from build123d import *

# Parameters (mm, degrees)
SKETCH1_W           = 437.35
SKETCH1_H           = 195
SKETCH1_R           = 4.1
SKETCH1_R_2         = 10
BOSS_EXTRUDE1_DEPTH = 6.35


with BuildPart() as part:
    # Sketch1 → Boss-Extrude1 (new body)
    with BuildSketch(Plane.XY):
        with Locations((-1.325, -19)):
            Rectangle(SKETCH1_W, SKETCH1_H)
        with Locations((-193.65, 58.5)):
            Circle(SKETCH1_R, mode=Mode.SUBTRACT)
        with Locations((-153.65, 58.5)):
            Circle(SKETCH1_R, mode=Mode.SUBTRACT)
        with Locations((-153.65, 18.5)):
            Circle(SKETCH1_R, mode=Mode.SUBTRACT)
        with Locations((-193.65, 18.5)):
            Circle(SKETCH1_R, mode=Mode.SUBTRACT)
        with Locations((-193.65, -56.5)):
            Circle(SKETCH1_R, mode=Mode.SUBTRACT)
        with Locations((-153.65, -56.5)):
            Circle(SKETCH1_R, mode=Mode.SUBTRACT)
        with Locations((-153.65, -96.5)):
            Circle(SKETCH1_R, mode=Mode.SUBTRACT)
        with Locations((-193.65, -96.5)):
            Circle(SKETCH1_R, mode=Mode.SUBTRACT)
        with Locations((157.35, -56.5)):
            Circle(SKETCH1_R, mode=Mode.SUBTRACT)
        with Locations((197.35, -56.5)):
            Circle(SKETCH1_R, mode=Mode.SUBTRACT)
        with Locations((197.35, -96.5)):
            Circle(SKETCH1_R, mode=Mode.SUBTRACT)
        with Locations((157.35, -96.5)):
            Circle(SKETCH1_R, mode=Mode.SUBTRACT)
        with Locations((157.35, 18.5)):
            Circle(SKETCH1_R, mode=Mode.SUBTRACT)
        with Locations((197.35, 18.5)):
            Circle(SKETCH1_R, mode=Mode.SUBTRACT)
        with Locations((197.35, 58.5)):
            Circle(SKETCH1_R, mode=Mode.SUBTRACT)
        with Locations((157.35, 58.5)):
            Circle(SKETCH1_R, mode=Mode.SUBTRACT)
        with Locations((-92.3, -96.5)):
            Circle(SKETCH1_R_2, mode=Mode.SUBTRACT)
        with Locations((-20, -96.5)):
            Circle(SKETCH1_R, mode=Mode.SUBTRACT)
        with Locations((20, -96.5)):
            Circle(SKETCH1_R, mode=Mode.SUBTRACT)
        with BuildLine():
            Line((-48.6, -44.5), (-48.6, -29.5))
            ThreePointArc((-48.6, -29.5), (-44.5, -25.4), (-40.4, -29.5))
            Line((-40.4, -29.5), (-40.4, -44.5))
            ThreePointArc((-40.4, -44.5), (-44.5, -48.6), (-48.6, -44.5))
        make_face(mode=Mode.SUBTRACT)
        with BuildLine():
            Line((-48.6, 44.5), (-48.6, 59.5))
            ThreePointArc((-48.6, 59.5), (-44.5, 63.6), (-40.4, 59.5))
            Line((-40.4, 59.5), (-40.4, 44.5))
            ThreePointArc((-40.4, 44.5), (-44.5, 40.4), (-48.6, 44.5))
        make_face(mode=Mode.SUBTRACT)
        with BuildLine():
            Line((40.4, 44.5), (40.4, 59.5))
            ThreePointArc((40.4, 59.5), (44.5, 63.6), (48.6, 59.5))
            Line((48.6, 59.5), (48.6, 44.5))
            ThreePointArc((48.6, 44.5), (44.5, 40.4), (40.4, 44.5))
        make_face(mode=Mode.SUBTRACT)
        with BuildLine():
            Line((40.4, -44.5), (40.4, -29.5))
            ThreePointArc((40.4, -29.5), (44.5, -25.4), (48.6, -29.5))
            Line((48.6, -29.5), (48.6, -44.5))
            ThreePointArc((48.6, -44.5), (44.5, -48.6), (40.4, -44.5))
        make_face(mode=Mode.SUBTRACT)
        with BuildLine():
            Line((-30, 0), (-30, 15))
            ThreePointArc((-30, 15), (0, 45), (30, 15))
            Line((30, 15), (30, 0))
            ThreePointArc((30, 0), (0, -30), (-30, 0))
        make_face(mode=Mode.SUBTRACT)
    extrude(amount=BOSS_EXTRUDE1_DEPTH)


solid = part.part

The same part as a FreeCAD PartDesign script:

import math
import FreeCAD as App
import Part
import Sketcher
from FreeCAD import Vector
Q = App.Units.Quantity

doc = App.newDocument("Part")
body = doc.addObject("PartDesign::Body", "Body")

# Sketch on XY plane
sketch1 = doc.addObject("Sketcher::SketchObject", "Sketch")
body.addObject(sketch1)
sketch1.AttachmentSupport = (doc.XY_Plane, [""])
sketch1.MapMode = "FlatFace"
sketch1.addGeometry(Part.LineSegment(Vector(-220, 78.5, 0), Vector(-220, -116.5, 0)), False)
sketch1.addGeometry(Part.LineSegment(Vector(-220, -116.5, 0), Vector(217.3, -116.5, 0)), False)
sketch1.addGeometry(Part.LineSegment(Vector(217.3, -116.5, 0), Vector(217.3, 78.5, 0)), False)
sketch1.addGeometry(Part.LineSegment(Vector(217.3, 78.5, 0), Vector(-220, 78.5, 0)), False)
sketch1.addGeometry(Part.Circle(Vector(-193.7, -96.5, 0), Vector(0, 0, 1), 4.1), False)
sketch1.addGeometry(Part.Circle(Vector(-153.7, -96.5, 0), Vector(0, 0, 1), 4.1), False)
sketch1.addGeometry(Part.Circle(Vector(-92.3, -96.5, 0), Vector(0, 0, 1), 10), False)
sketch1.addGeometry(Part.Circle(Vector(-20, -96.5, 0), Vector(0, 0, 1), 4.1), False)
sketch1.addGeometry(Part.Circle(Vector(-193.7, -56.5, 0), Vector(0, 0, 1), 4.1), False)
sketch1.addGeometry(Part.Circle(Vector(-153.7, -56.5, 0), Vector(0, 0, 1), 4.1), False)
sketch1.addGeometry(Part.ArcOfCircle(Part.Circle(Vector(-44.5, -44.5, 0), Vector(0, 0, 1), 4.1), math.radians(180), math.radians(360)), False)
sketch1.addGeometry(Part.LineSegment(Vector(-48.6, -44.5, 0), Vector(-48.6, -29.5, 0)), False)
sketch1.addGeometry(Part.ArcOfCircle(Part.Circle(Vector(-44.5, -29.5, 0), Vector(0, 0, 1), 4.1), math.radians(0), math.radians(180)), False)
sketch1.addGeometry(Part.LineSegment(Vector(-40.4, -29.5, 0), Vector(-40.4, -44.5, 0)), False)
sketch1.addGeometry(Part.Circle(Vector(20, -96.5, 0), Vector(0, 0, 1), 4.1), False)
sketch1.addGeometry(Part.Circle(Vector(157.3, -96.5, 0), Vector(0, 0, 1), 4.1), False)
sketch1.addGeometry(Part.Circle(Vector(197.3, -96.5, 0), Vector(0, 0, 1), 4.1), False)
sketch1.addGeometry(Part.ArcOfCircle(Part.Circle(Vector(44.5, -44.5, 0), Vector(0, 0, 1), 4.1), math.radians(180), math.radians(360)), False)
sketch1.addGeometry(Part.LineSegment(Vector(40.4, -44.5, 0), Vector(40.4, -29.5, 0)), False)
sketch1.addGeometry(Part.ArcOfCircle(Part.Circle(Vector(44.5, -29.5, 0), Vector(0, 0, 1), 4.1), math.radians(0), math.radians(180)), False)
sketch1.addGeometry(Part.LineSegment(Vector(48.6, -29.5, 0), Vector(48.6, -44.5, 0)), False)
sketch1.addGeometry(Part.Circle(Vector(157.3, -56.5, 0), Vector(0, 0, 1), 4.1), False)
sketch1.addGeometry(Part.Circle(Vector(197.3, -56.5, 0), Vector(0, 0, 1), 4.1), False)
sketch1.addGeometry(Part.Circle(Vector(-193.7, 18.5, 0), Vector(0, 0, 1), 4.1), False)
sketch1.addGeometry(Part.Circle(Vector(-153.7, 18.5, 0), Vector(0, 0, 1), 4.1), False)
sketch1.addGeometry(Part.ArcOfCircle(Part.Circle(Vector(0, 0, 0), Vector(0, 0, 1), 30), math.radians(180), math.radians(360)), False)
sketch1.addGeometry(Part.LineSegment(Vector(-30, 0, 0), Vector(-30, 15, 0)), False)
sketch1.addGeometry(Part.ArcOfCircle(Part.Circle(Vector(0, 15, 0), Vector(0, 0, 1), 30), math.radians(0), math.radians(180)), False)
sketch1.addGeometry(Part.LineSegment(Vector(30, 15, 0), Vector(30, 0, 0)), False)
sketch1.addGeometry(Part.Circle(Vector(-193.7, 58.5, 0), Vector(0, 0, 1), 4.1), False)
sketch1.addGeometry(Part.Circle(Vector(-153.7, 58.5, 0), Vector(0, 0, 1), 4.1), False)
sketch1.addGeometry(Part.ArcOfCircle(Part.Circle(Vector(-44.5, 44.5, 0), Vector(0, 0, 1), 4.1), math.radians(180), math.radians(360)), False)
sketch1.addGeometry(Part.LineSegment(Vector(-48.6, 44.5, 0), Vector(-48.6, 59.5, 0)), False)
sketch1.addGeometry(Part.ArcOfCircle(Part.Circle(Vector(-44.5, 59.5, 0), Vector(0, 0, 1), 4.1), math.radians(0), math.radians(180)), False)
sketch1.addGeometry(Part.LineSegment(Vector(-40.4, 59.5, 0), Vector(-40.4, 44.5, 0)), False)
sketch1.addGeometry(Part.Circle(Vector(157.3, 18.5, 0), Vector(0, 0, 1), 4.1), False)
sketch1.addGeometry(Part.Circle(Vector(197.3, 18.5, 0), Vector(0, 0, 1), 4.1), False)
sketch1.addGeometry(Part.ArcOfCircle(Part.Circle(Vector(44.5, 44.5, 0), Vector(0, 0, 1), 4.1), math.radians(180), math.radians(360)), False)
sketch1.addGeometry(Part.LineSegment(Vector(40.4, 44.5, 0), Vector(40.4, 59.5, 0)), False)
sketch1.addGeometry(Part.ArcOfCircle(Part.Circle(Vector(44.5, 59.5, 0), Vector(0, 0, 1), 4.1), math.radians(0), math.radians(180)), False)
sketch1.addGeometry(Part.LineSegment(Vector(48.6, 59.5, 0), Vector(48.6, 44.5, 0)), False)
sketch1.addGeometry(Part.Circle(Vector(157.3, 58.5, 0), Vector(0, 0, 1), 4.1), False)
sketch1.addGeometry(Part.Circle(Vector(197.3, 58.5, 0), Vector(0, 0, 1), 4.1), False)
sketch1.addConstraint(Sketcher.Constraint("Coincident", 0, 2, 1, 1))
sketch1.addConstraint(Sketcher.Constraint("Coincident", 1, 2, 2, 1))
sketch1.addConstraint(Sketcher.Constraint("Coincident", 2, 2, 3, 1))
sketch1.addConstraint(Sketcher.Constraint("Coincident", 3, 2, 0, 1))
sketch1.addConstraint(Sketcher.Constraint("Tangent", 10, 1, 11, 1))
sketch1.addConstraint(Sketcher.Constraint("Tangent", 11, 2, 12, 2))
sketch1.addConstraint(Sketcher.Constraint("Tangent", 12, 1, 13, 1))
sketch1.addConstraint(Sketcher.Constraint("Tangent", 13, 2, 10, 2))
sketch1.addConstraint(Sketcher.Constraint("Tangent", 17, 1, 18, 1))
sketch1.addConstraint(Sketcher.Constraint("Tangent", 18, 2, 19, 2))
sketch1.addConstraint(Sketcher.Constraint("Tangent", 19, 1, 20, 1))
sketch1.addConstraint(Sketcher.Constraint("Tangent", 20, 2, 17, 2))
sketch1.addConstraint(Sketcher.Constraint("Tangent", 25, 1, 26, 1))
sketch1.addConstraint(Sketcher.Constraint("Tangent", 26, 2, 27, 2))
sketch1.addConstraint(Sketcher.Constraint("Tangent", 27, 1, 28, 1))
sketch1.addConstraint(Sketcher.Constraint("Tangent", 28, 2, 25, 2))
sketch1.addConstraint(Sketcher.Constraint("Tangent", 31, 1, 32, 1))
sketch1.addConstraint(Sketcher.Constraint("Tangent", 32, 2, 33, 2))
sketch1.addConstraint(Sketcher.Constraint("Tangent", 33, 1, 34, 1))
sketch1.addConstraint(Sketcher.Constraint("Tangent", 34, 2, 31, 2))
sketch1.addConstraint(Sketcher.Constraint("Tangent", 37, 1, 38, 1))
sketch1.addConstraint(Sketcher.Constraint("Tangent", 38, 2, 39, 2))
sketch1.addConstraint(Sketcher.Constraint("Tangent", 39, 1, 40, 1))
sketch1.addConstraint(Sketcher.Constraint("Tangent", 40, 2, 37, 2))
sketch1.addConstraint(Sketcher.Constraint("Vertical", 0))
sketch1.addConstraint(Sketcher.Constraint("Horizontal", 1))
sketch1.addConstraint(Sketcher.Constraint("Vertical", 2))
sketch1.addConstraint(Sketcher.Constraint("Horizontal", 3))
sketch1.addConstraint(Sketcher.Constraint("Vertical", 11))
sketch1.addConstraint(Sketcher.Constraint("Vertical", 13))
sketch1.addConstraint(Sketcher.Constraint("Vertical", 18))
sketch1.addConstraint(Sketcher.Constraint("Vertical", 20))
sketch1.addConstraint(Sketcher.Constraint("Vertical", 26))
sketch1.addConstraint(Sketcher.Constraint("Vertical", 28))
sketch1.addConstraint(Sketcher.Constraint("Vertical", 32))
sketch1.addConstraint(Sketcher.Constraint("Vertical", 34))
sketch1.addConstraint(Sketcher.Constraint("Vertical", 38))
sketch1.addConstraint(Sketcher.Constraint("Vertical", 40))
sketch1.addConstraint(Sketcher.Constraint("Coincident", 25, 3, -1, 1))
sketch1.addConstraint(Sketcher.Constraint("Equal", 4, 5))
sketch1.addConstraint(Sketcher.Constraint("Equal", 5, 7))
sketch1.addConstraint(Sketcher.Constraint("Equal", 7, 8))
sketch1.addConstraint(Sketcher.Constraint("Equal", 8, 9))
sketch1.addConstraint(Sketcher.Constraint("Equal", 9, 10))
sketch1.addConstraint(Sketcher.Constraint("Equal", 12, 14))
sketch1.addConstraint(Sketcher.Constraint("Equal", 14, 15))
sketch1.addConstraint(Sketcher.Constraint("Equal", 15, 16))
sketch1.addConstraint(Sketcher.Constraint("Equal", 16, 17))
sketch1.addConstraint(Sketcher.Constraint("Equal", 19, 21))
sketch1.addConstraint(Sketcher.Constraint("Equal", 21, 22))
sketch1.addConstraint(Sketcher.Constraint("Equal", 22, 23))
sketch1.addConstraint(Sketcher.Constraint("Equal", 23, 24))
sketch1.addConstraint(Sketcher.Constraint("Equal", 24, 29))
sketch1.addConstraint(Sketcher.Constraint("Equal", 29, 30))
sketch1.addConstraint(Sketcher.Constraint("Equal", 30, 31))
sketch1.addConstraint(Sketcher.Constraint("Equal", 33, 35))
sketch1.addConstraint(Sketcher.Constraint("Equal", 35, 36))
sketch1.addConstraint(Sketcher.Constraint("Equal", 36, 37))
sketch1.addConstraint(Sketcher.Constraint("Equal", 39, 41))
sketch1.addConstraint(Sketcher.Constraint("Equal", 41, 42))
sketch1.addConstraint(Sketcher.Constraint("Symmetric", 17, 3, 31, 3, -1, 1))
sketch1.addConstraint(Sketcher.Constraint("Symmetric", 10, 3, 37, 3, -1, 1))
sketch1.addConstraint(Sketcher.Constraint("Symmetric", 7, 3, 14, 3, -2))
sketch1.addConstraint(Sketcher.Constraint("Symmetric", 10, 3, 17, 3, -2))
sketch1.addConstraint(Sketcher.Constraint("Horizontal", 4, 3, 5, 3))
sketch1.addConstraint(Sketcher.Constraint("Horizontal", 5, 3, 6, 3))
sketch1.addConstraint(Sketcher.Constraint("Horizontal", 6, 3, 7, 3))
sketch1.addConstraint(Sketcher.Constraint("Horizontal", 8, 3, 9, 3))
sketch1.addConstraint(Sketcher.Constraint("Horizontal", 14, 3, 15, 3))
sketch1.addConstraint(Sketcher.Constraint("Horizontal", 15, 3, 16, 3))
sketch1.addConstraint(Sketcher.Constraint("Horizontal", 12, 3, 19, 3))
sketch1.addConstraint(Sketcher.Constraint("Horizontal", 9, 3, 21, 3))
sketch1.addConstraint(Sketcher.Constraint("Horizontal", 21, 3, 22, 3))
sketch1.addConstraint(Sketcher.Constraint("Horizontal", 23, 3, 24, 3))
sketch1.addConstraint(Sketcher.Constraint("Horizontal", 29, 3, 30, 3))
sketch1.addConstraint(Sketcher.Constraint("Horizontal", 24, 3, 35, 3))
sketch1.addConstraint(Sketcher.Constraint("Horizontal", 35, 3, 36, 3))
sketch1.addConstraint(Sketcher.Constraint("Horizontal", 33, 3, 39, 3))
sketch1.addConstraint(Sketcher.Constraint("Horizontal", 30, 3, 41, 3))
sketch1.addConstraint(Sketcher.Constraint("Horizontal", 41, 3, 42, 3))
sketch1.addConstraint(Sketcher.Constraint("Vertical", 4, 3, 8, 3))
sketch1.addConstraint(Sketcher.Constraint("Vertical", 5, 3, 9, 3))
sketch1.addConstraint(Sketcher.Constraint("Vertical", 15, 3, 21, 3))
sketch1.addConstraint(Sketcher.Constraint("Vertical", 16, 3, 22, 3))
sketch1.addConstraint(Sketcher.Constraint("Vertical", 8, 3, 23, 3))
sketch1.addConstraint(Sketcher.Constraint("Vertical", 9, 3, 24, 3))
sketch1.addConstraint(Sketcher.Constraint("Vertical", 23, 3, 29, 3))
sketch1.addConstraint(Sketcher.Constraint("Vertical", 24, 3, 30, 3))
sketch1.addConstraint(Sketcher.Constraint("Vertical", 21, 3, 35, 3))
sketch1.addConstraint(Sketcher.Constraint("Vertical", 22, 3, 36, 3))
sketch1.addConstraint(Sketcher.Constraint("Vertical", 35, 3, 41, 3))
sketch1.addConstraint(Sketcher.Constraint("Vertical", 36, 3, 42, 3))
sketch1.addConstraint(Sketcher.Constraint("Equal", 20, 26))
sketch1.addConstraint(Sketcher.Constraint("Equal", 28, 32))
sketch1.addConstraint(Sketcher.Constraint("Diameter", 6, Q("20 mm")))
sketch1.addConstraint(Sketcher.Constraint("Radius", 25, Q("30 mm")))
sketch1.addConstraint(Sketcher.Constraint("Diameter", 4, Q("8.2 mm")))
sketch1.addConstraint(Sketcher.Constraint("DistanceY", 0, 2, 0, 1, Q("195 mm")))
sketch1.addConstraint(Sketcher.Constraint("DistanceY", 11, 1, 11, 2, Q("15 mm")))
sketch1.addConstraint(Sketcher.Constraint("DistanceX", 7, 3, -1, 1, Q("20 mm")))
sketch1.addConstraint(Sketcher.Constraint("DistanceX", 0, 2, -1, 1, Q("220 mm")))
sketch1.addConstraint(Sketcher.Constraint("DistanceX", 4, 3, 5, 3, Q("40 mm")))
sketch1.addConstraint(Sketcher.Constraint("DistanceY", 4, 3, 8, 3, Q("40 mm")))
sketch1.addConstraint(Sketcher.Constraint("DistanceY", 7, 3, 10, 3, Q("52 mm")))
sketch1.addConstraint(Sketcher.Constraint("DistanceX", 15, 3, 16, 3, Q("40 mm")))
sketch1.addConstraint(Sketcher.Constraint("DistanceX", 10, 3, 17, 3, Q("89 mm")))
sketch1.addConstraint(Sketcher.Constraint("DistanceY", 8, 3, 23, 3, Q("75 mm")))
sketch1.addConstraint(Sketcher.Constraint("DistanceY", 23, 3, 29, 3, Q("40 mm")))
sketch1.addConstraint(Sketcher.Constraint("DistanceY", 12, 3, 31, 3, Q("74 mm")))
sketch1.addConstraint(Sketcher.Constraint("DistanceY", 0, 2, 4, 3, Q("20 mm")))
sketch1.addConstraint(Sketcher.Constraint("DistanceX", 16, 3, 1, 2, Q("20 mm")))
sketch1.addConstraint(Sketcher.Constraint("DistanceX", 1, 1, 1, 2, Q("437.35 mm")))
sketch1.addConstraint(Sketcher.Constraint("DistanceX", 6, 3, -1, 1, Q("92.3 mm")))
sketch1.addConstraint(Sketcher.Constraint("DistanceX", 4, 3, -1, 1, Q("193.65 mm")))
pad1 = doc.addObject("PartDesign::Pad", "Pad")
body.addObject(pad1)
pad1.Profile = sketch1
pad1.Length = 6.35

doc.recompute()
